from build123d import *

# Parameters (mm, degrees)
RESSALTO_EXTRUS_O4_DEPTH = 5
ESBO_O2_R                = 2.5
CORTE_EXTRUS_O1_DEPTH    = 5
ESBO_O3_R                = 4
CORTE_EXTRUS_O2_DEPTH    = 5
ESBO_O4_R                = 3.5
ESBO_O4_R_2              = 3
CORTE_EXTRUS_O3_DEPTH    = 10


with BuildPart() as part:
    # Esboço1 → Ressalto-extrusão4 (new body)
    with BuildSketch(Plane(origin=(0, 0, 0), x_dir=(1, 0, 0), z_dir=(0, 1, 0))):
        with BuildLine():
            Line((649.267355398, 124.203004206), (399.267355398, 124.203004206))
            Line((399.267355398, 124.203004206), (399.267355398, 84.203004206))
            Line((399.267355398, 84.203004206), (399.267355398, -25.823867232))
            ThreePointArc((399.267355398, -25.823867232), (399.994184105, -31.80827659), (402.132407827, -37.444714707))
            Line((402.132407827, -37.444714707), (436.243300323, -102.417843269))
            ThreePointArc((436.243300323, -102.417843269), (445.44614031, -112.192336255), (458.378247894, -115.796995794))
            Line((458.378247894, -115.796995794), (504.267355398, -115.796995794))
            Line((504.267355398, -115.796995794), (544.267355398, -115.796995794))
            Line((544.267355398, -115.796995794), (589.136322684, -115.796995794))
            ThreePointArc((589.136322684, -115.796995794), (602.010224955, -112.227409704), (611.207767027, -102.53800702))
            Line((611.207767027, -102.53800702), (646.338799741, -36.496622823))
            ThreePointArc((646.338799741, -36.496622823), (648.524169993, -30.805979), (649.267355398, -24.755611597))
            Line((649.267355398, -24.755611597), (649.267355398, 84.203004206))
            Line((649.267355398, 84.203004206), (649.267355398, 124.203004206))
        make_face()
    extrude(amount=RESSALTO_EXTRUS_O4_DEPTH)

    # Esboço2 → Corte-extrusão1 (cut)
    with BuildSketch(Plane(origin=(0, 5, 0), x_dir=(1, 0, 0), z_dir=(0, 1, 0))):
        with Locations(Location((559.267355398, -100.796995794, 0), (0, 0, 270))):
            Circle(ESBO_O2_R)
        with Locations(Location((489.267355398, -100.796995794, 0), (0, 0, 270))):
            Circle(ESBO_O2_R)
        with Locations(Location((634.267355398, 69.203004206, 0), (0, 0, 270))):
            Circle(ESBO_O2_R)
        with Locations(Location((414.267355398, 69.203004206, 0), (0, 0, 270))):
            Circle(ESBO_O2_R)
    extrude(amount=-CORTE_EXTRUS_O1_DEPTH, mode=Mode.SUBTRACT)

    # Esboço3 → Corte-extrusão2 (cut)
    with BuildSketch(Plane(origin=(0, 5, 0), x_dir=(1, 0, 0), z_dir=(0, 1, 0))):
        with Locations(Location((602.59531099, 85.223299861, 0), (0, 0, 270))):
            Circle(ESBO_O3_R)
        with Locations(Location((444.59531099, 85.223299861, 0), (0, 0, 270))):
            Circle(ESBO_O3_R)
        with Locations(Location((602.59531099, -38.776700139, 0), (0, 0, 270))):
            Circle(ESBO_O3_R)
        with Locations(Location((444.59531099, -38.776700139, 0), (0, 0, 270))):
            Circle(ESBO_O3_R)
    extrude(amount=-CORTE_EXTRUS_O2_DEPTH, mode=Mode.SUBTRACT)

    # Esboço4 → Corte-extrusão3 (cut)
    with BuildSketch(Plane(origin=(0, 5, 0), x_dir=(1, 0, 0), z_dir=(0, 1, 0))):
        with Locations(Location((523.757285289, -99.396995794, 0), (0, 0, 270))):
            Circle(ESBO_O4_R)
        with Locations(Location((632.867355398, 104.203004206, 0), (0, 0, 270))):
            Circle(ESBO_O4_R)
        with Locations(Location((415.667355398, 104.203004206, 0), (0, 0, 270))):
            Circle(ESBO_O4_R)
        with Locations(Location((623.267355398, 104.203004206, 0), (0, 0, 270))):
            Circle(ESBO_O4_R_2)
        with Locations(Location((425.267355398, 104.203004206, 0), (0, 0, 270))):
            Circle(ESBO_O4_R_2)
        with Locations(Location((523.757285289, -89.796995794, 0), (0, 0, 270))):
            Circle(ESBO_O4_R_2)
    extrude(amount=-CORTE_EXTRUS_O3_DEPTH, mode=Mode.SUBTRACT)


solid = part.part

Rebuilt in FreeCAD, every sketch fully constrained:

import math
import FreeCAD as App
import Part
import Sketcher

V = App.Vector
Q = App.Units.Quantity

doc = App.newDocument("Part")
body = doc.addObject("PartDesign::Body", "Body")

sketch1 = body.newObject("Sketcher::SketchObject", "Sketch")
sketch1.AttachmentSupport = (doc.getObject("XZ_Plane"), [""])
sketch1.MapMode = "FlatFace"
sketch1.addGeometry([
    Part.LineSegment(V(649, -124, 0), V(399, -124, 0)),
    Part.LineSegment(V(399, -124, 0), V(399, 26, 0)),
    Part.ArcOfCircle(Part.Circle(V(424, 26, 0), V(0, 0, 1), 25), math.radians(152), math.radians(180)),
    Part.LineSegment(V(402, 37, 0), V(436, 102, 0)),
    Part.ArcOfCircle(Part.Circle(V(458, 91, 0), V(0, 0, 1), 25), math.radians(90), math.radians(152)),
    Part.LineSegment(V(458, 116, 0), V(589, 116, 0)),
    Part.ArcOfCircle(Part.Circle(V(589, 91, 0), V(0, 0, 1), 25), math.radians(28), math.radians(90)),
    Part.LineSegment(V(611, 103, 0), V(646, 36, 0)),
    Part.ArcOfCircle(Part.Circle(V(624, 25, 0), V(0, 0, 1), 25), math.radians(0), math.radians(28)),
    Part.LineSegment(V(649, 25, 0), V(649, -124, 0)),
], False)
sketch1.addConstraint([
    Sketcher.Constraint("Coincident", 0, 2, 1, 1),
    Sketcher.Constraint("Tangent", 1, 2, 2, 2),
    Sketcher.Constraint("Tangent", 2, 1, 3, 1),
    Sketcher.Constraint("Tangent", 3, 2, 4, 2),
    Sketcher.Constraint("Tangent", 4, 1, 5, 1),
    Sketcher.Constraint("Tangent", 5, 2, 6, 2),
    Sketcher.Constraint("Tangent", 6, 1, 7, 1),
    Sketcher.Constraint("Tangent", 7, 2, 8, 2),
    Sketcher.Constraint("Tangent", 8, 1, 9, 1),
    Sketcher.Constraint("Coincident", 9, 2, 0, 1),
    Sketcher.Constraint("Horizontal", 0),
    Sketcher.Constraint("Vertical", 1),
    Sketcher.Constraint("Horizontal", 5),
    Sketcher.Constraint("Vertical", 9),
    Sketcher.Constraint("Equal", 2, 4),
    Sketcher.Constraint("Equal", 4, 6),
    Sketcher.Constraint("Equal", 6, 8),
    Sketcher.Constraint("Radius", 2, Q("25 mm")),
    Sketcher.Constraint("DistanceX", 0, 2, 0, 1, Q("250 mm")),
    Sketcher.Constraint("DistanceY", 0, 2, 4, 3, Q("215 mm")),
    Sketcher.Constraint("DistanceY", 1, 1, 1, 2, Q("150.026871 mm")),
    Sketcher.Constraint("DistanceX", -1, 1, 3, 2, Q("436.2433 mm")),
    Sketcher.Constraint("DistanceX", -1, 1, 7, 2, Q("646.3388 mm")),
    Sketcher.Constraint("Distance", 3, Q("73.382971 mm")),
    Sketcher.Constraint("DistanceX", 5, 1, 5, 2, Q("130.758075 mm")),
    Sketcher.Constraint("DistanceY", -1, 1, 8, 3, Q("24.755612 mm")),
])
pad1 = body.newObject("PartDesign::Pad", "Pad")
pad1.Profile = sketch1
pad1.Length = 5
pad1.Reversed = True

sketch2 = body.newObject("Sketcher::SketchObject", "Sketch001")
sketch2.AttachmentSupport = (doc.getObject("XZ_Plane"), [""])
sketch2.MapMode = "FlatFace"
sketch2.AttachmentOffset = App.Placement(V(0, 0, -5), App.Rotation())
sketch2.addGeometry([
    Part.Circle(V(559.3, 100.8, 0), V(0, 0, 1), 2.5),
    Part.Circle(V(489.3, 100.8, 0), V(0, 0, 1), 2.5),
    Part.Circle(V(634.3, -69.2, 0), V(0, 0, 1), 2.5),
    Part.Circle(V(414.3, -69.2, 0), V(0, 0, 1), 2.5),
], False)
sketch2.addConstraint([
    Sketcher.Constraint("Equal", 0, 1),
    Sketcher.Constraint("Equal", 1, 2),
    Sketcher.Constraint("Equal", 2, 3),
    Sketcher.Constraint("Horizontal", 0, 3, 1, 3),
    Sketcher.Constraint("Horizontal", 2, 3, 3, 3),
    Sketcher.Constraint("Diameter", 0, Q("5 mm")),
    Sketcher.Constraint("DistanceX", 1, 3, 0, 3, Q("70 mm")),
    Sketcher.Constraint("DistanceX", 0, 3, 2, 3, Q("75 mm")),
    Sketcher.Constraint("DistanceY", 2, 3, 0, 3, Q("170 mm")),
    Sketcher.Constraint("DistanceX", 3, 3, 1, 3, Q("75 mm")),
    Sketcher.Constraint("DistanceX", -1, 1, 0, 3, Q("559.267355 mm")),
    Sketcher.Constraint("DistanceY", -1, 1, 0, 3, Q("100.796996 mm")),
])
pocket1 = body.newObject("PartDesign::Pocket", "Pocket")
pocket1.Profile = sketch2
pocket1.Length = 5
pocket1.Reversed = True

sketch3 = body.newObject("Sketcher::SketchObject", "Sketch002")
sketch3.AttachmentSupport = (doc.getObject("XZ_Plane"), [""])
sketch3.MapMode = "FlatFace"
sketch3.AttachmentOffset = App.Placement(V(0, 0, -5), App.Rotation())
sketch3.addGeometry([
    Part.Circle(V(602.6, -85.2, 0), V(0, 0, 1), 4),
    Part.Circle(V(444.6, -85.2, 0), V(0, 0, 1), 4),
    Part.Circle(V(602.6, 38.8, 0), V(0, 0, 1), 4),
    Part.Circle(V(444.6, 38.8, 0), V(0, 0, 1), 4),
], False)
sketch3.addConstraint([
    Sketcher.Constraint("Equal", 0, 1),
    Sketcher.Constraint("Equal", 1, 2),
    Sketcher.Constraint("Equal", 2, 3),
    Sketcher.Constraint("Horizontal", 0, 3, 1, 3),
    Sketcher.Constraint("Horizontal", 2, 3, 3, 3),
    Sketcher.Constraint("Vertical", 0, 3, 2, 3),
    Sketcher.Constraint("Vertical", 1, 3, 3, 3),
    Sketcher.Constraint("Diameter", 0, Q("8 mm")),
    Sketcher.Constraint("DistanceX", 1, 3, 0, 3, Q("158 mm")),
    Sketcher.Constraint("DistanceY", 0, 3, 2, 3, Q("124 mm")),
    Sketcher.Constraint("DistanceY", 0, 3, -1, 1, Q("85.2233 mm")),
    Sketcher.Constraint("DistanceX", -1, 1, 0, 3, Q("602.595311 mm")),
])
pocket2 = body.newObject("PartDesign::Pocket", "Pocket001")
pocket2.Profile = sketch3
pocket2.Length = 5
pocket2.Reversed = True

sketch4 = body.newObject("Sketcher::SketchObject", "Sketch003")
sketch4.AttachmentSupport = (doc.getObject("XZ_Plane"), [""])
sketch4.MapMode = "FlatFace"
sketch4.AttachmentOffset = App.Placement(V(0, 0, -5), App.Rotation())
sketch4.addGeometry([
    Part.Circle(V(523.8, 99.4, 0), V(0, 0, 1), 3.5),
    Part.Circle(V(632.9, -104.2, 0), V(0, 0, 1), 3.5),
    Part.Circle(V(415.7, -104.2, 0), V(0, 0, 1), 3.5),
    Part.Circle(V(623.3, -104.2, 0), V(0, 0, 1), 3),
    Part.Circle(V(425.3, -104.2, 0), V(0, 0, 1), 3),
    Part.Circle(V(523.8, 89.8, 0), V(0, 0, 1), 3),
], False)
sketch4.addConstraint([
    Sketcher.Constraint("Equal", 0, 1),
    Sketcher.Constraint("Equal", 1, 2),
    Sketcher.Constraint("Equal", 3, 4),
    Sketcher.Constraint("Equal", 4, 5),
    Sketcher.Constraint("Horizontal", 1, 3, 2, 3),
    Sketcher.Constraint("Horizontal", 2, 3, 3, 3),
    Sketcher.Constraint("Horizontal", 3, 3, 4, 3),
    Sketcher.Constraint("Vertical", 0, 3, 5, 3),
    Sketcher.Constraint("Diameter", 0, Q("7 mm")),
    Sketcher.Constraint("Diameter", 3, Q("6 mm")),
    Sketcher.Constraint("DistanceX", 4, 3, 3, 3, Q("198 mm")),
    Sketcher.Constraint("DistanceY", 4, 3, 5, 3, Q("194 mm")),
    Sketcher.Constraint("DistanceY", 1, 3, 0, 3, Q("203.6 mm")),
    Sketcher.Constraint("DistanceX", 2, 3, 1, 3, Q("217.2 mm")),
    Sketcher.Constraint("DistanceX", 3, 3, 1, 3, Q("9.6 mm")),
    Sketcher.Constraint("DistanceX", 0, 3, 1, 3, Q("109.11007 mm")),
    Sketcher.Constraint("DistanceX", -1, 1, 0, 3, Q("523.757285 mm")),
    Sketcher.Constraint("DistanceY", -1, 1, 0, 3, Q("99.396996 mm")),
])
pocket3 = body.newObject("PartDesign::Pocket", "Pocket002")
pocket3.Profile = sketch4
pocket3.Length = 10
pocket3.Reversed = True

doc.recompute()
